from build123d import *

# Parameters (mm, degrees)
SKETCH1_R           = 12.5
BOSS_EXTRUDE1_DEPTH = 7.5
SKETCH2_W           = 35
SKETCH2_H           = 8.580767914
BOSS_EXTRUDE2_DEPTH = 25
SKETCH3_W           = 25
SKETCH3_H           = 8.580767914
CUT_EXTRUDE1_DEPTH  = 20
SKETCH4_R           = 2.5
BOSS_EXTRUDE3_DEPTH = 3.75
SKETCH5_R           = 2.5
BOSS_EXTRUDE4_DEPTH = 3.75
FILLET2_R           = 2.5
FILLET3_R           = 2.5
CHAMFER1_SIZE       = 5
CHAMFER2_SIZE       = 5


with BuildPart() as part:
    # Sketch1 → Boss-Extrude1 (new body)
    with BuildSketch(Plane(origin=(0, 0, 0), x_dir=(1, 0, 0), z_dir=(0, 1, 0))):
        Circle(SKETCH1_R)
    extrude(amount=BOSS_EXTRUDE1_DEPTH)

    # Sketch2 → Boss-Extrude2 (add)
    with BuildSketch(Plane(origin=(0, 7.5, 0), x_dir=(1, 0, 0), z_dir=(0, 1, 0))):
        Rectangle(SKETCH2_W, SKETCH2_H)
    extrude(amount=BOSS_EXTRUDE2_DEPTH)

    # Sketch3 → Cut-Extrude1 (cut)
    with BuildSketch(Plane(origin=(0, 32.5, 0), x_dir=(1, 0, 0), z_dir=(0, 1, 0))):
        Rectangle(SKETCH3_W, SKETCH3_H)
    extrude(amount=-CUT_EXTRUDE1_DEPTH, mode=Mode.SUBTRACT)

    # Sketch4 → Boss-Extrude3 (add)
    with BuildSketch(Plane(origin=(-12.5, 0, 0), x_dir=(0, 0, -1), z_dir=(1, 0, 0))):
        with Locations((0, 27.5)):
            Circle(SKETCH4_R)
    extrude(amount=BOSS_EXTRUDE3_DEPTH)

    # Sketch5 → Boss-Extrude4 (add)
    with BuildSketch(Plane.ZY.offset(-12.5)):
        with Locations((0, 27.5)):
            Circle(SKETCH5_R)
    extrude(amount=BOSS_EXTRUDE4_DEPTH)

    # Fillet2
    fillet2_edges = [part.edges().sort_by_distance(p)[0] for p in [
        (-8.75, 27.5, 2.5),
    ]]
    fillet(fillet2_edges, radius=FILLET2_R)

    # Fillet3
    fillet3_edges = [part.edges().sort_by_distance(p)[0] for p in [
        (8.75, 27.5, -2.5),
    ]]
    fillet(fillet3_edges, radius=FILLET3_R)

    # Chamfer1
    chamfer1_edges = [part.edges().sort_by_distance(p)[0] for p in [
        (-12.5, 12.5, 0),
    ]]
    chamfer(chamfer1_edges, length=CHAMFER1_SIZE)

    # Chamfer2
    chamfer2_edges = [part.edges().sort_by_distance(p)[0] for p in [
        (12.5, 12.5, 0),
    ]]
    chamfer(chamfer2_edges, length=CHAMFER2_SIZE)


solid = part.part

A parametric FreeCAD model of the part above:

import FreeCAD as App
import Part
import Sketcher
from FreeCAD import Vector
Q = App.Units.Quantity


def edges_at(feature, points):
    """Names of the edges that pass closest to the given points."""
    edges = feature.Shape.Edges
    near = lambda p: min(range(len(edges)), key=lambda i: edges[i].distToShape(Part.Vertex(*p))[0])
    return sorted({f"Edge{near(p) + 1}" for p in points})

doc = App.newDocument("Part")
body = doc.addObject("PartDesign::Body", "Body")

# Sketch on XZ plane
sketch1 = body.newObject("Sketcher::SketchObject", "Sketch")
sketch1.AttachmentSupport = (doc.getObject("XZ_Plane"), [""])
sketch1.MapMode = "FlatFace"
sketch1.addGeometry(Part.Circle(Vector(0, 0, 0), Vector(0, 0, 1), 12.5), False)
sketch1.addConstraint(Sketcher.Constraint("Coincident", 0, 3, -1, 1))
sketch1.addConstraint(Sketcher.Constraint("Diameter", 0, Q("25 mm")))
pad1 = body.newObject("PartDesign::Pad", "Pad")
pad1.Profile = sketch1
pad1.Length = 7.5
pad1.Reversed = True

# Sketch on XZ plane
sketch2 = body.newObject("Sketcher::SketchObject", "Sketch001")
sketch2.AttachmentSupport = (doc.getObject("XZ_Plane"), [""])
sketch2.MapMode = "FlatFace"
sketch2.AttachmentOffset = App.Placement(Vector(0, 0, -7.5), App.Rotation())
sketch2.addGeometry(Part.LineSegment(Vector(-17.5, -4.290384, 0), Vector(-17.5, 4.290384, 0)), False)
sketch2.addGeometry(Part.LineSegment(Vector(-17.5, 4.290384, 0), Vector(17.5, 4.290384, 0)), False)
sketch2.addGeometry(Part.LineSegment(Vector(17.5, 4.290384, 0), Vector(17.5, -4.290384, 0)), False)
sketch2.addGeometry(Part.LineSegment(Vector(17.5, -4.290384, 0), Vector(-17.5, -4.290384, 0)), False)
sketch2.addConstraint(Sketcher.Constraint("Coincident", 0, 2, 1, 1))
sketch2.addConstraint(Sketcher.Constraint("Coincident", 1, 2, 2, 1))
sketch2.addConstraint(Sketcher.Constraint("Coincident", 2, 2, 3, 1))
sketch2.addConstraint(Sketcher.Constraint("Coincident", 3, 2, 0, 1))
sketch2.addConstraint(Sketcher.Constraint("Vertical", 0))
sketch2.addConstraint(Sketcher.Constraint("Horizontal", 1))
sketch2.addConstraint(Sketcher.Constraint("Vertical", 2))
sketch2.addConstraint(Sketcher.Constraint("Horizontal", 3))
sketch2.addConstraint(Sketcher.Constraint("Symmetric", 0, 2, 2, 2, -1, 1))
sketch2.addConstraint(Sketcher.Constraint("DistanceX", 1, 1, 1, 2, Q("35 mm")))
sketch2.addConstraint(Sketcher.Constraint("DistanceY", 0, 1, 0, 2, Q("8.580768 mm")))
pad2 = body.newObject("PartDesign::Pad", "Pad001")
pad2.Profile = sketch2
pad2.Length = 25
pad2.Reversed = True

# Sketch on XZ plane
sketch3 = body.newObject("Sketcher::SketchObject", "Sketch002")
sketch3.AttachmentSupport = (doc.getObject("XZ_Plane"), [""])
sketch3.MapMode = "FlatFace"
sketch3.AttachmentOffset = App.Placement(Vector(0, 0, -32.5), App.Rotation())
sketch3.addGeometry(Part.LineSegment(Vector(-12.5, -4.290384, 0), Vector(-12.5, 4.290384, 0)), False)
sketch3.addGeometry(Part.LineSegment(Vector(-12.5, 4.290384, 0), Vector(12.5, 4.290384, 0)), False)
sketch3.addGeometry(Part.LineSegment(Vector(12.5, 4.290384, 0), Vector(12.5, -4.290384, 0)), False)
sketch3.addGeometry(Part.LineSegment(Vector(12.5, -4.290384, 0), Vector(-12.5, -4.290384, 0)), False)
sketch3.addConstraint(Sketcher.Constraint("Coincident", 0, 2, 1, 1))
sketch3.addConstraint(Sketcher.Constraint("Coincident", 1, 2, 2, 1))
sketch3.addConstraint(Sketcher.Constraint("Coincident", 2, 2, 3, 1))
sketch3.addConstraint(Sketcher.Constraint("Coincident", 3, 2, 0, 1))
sketch3.addConstraint(Sketcher.Constraint("Vertical", 0))
sketch3.addConstraint(Sketcher.Constraint("Horizontal", 1))
sketch3.addConstraint(Sketcher.Constraint("Vertical", 2))
sketch3.addConstraint(Sketcher.Constraint("Horizontal", 3))
sketch3.addConstraint(Sketcher.Constraint("Symmetric", 0, 2, 2, 2, -1, 1))
sketch3.addConstraint(Sketcher.Constraint("DistanceX", 1, 1, 1, 2, Q("25 mm")))
sketch3.addConstraint(Sketcher.Constraint("DistanceY", 0, 1, 0, 2, Q("8.580768 mm")))
pocket1 = body.newObject("PartDesign::Pocket", "Pocket")
pocket1.Profile = sketch3
pocket1.Length = 20
pocket1.Reversed = True

# Sketch on YZ plane
sketch4 = body.newObject("Sketcher::SketchObject", "Sketch003")
sketch4.AttachmentSupport = (doc.getObject("YZ_Plane"), [""])
sketch4.MapMode = "FlatFace"
sketch4.AttachmentOffset = App.Placement(Vector(0, 0, -12.5), App.Rotation())
sketch4.addGeometry(Part.Circle(Vector(27.5, 0, 0), Vector(0, 0, 1), 2.5), False)
sketch4.addConstraint(Sketcher.Constraint("PointOnObject", 0, 3, -1))
sketch4.addConstraint(Sketcher.Constraint("Diameter", 0, Q("5 mm")))
sketch4.addConstraint(Sketcher.Constraint("DistanceX", -1, 1, 0, 3, Q("27.5 mm")))
pad3 = body.newObject("PartDesign::Pad", "Pad002")
pad3.Profile = sketch4
pad3.Length = 3.75

# Sketch on YZ plane
sketch5 = body.newObject("Sketcher::SketchObject", "Sketch004")
sketch5.AttachmentSupport = (doc.getObject("YZ_Plane"), [""])
sketch5.MapMode = "FlatFace"
sketch5.AttachmentOffset = App.Placement(Vector(0, 0, 12.5), App.Rotation())
sketch5.addGeometry(Part.Circle(Vector(27.5, 0, 0), Vector(0, 0, 1), 2.5), False)
sketch5.addConstraint(Sketcher.Constraint("PointOnObject", 0, 3, -1))
sketch5.addConstraint(Sketcher.Constraint("Diameter", 0, Q("5 mm")))
sketch5.addConstraint(Sketcher.Constraint("DistanceX", -1, 1, 0, 3, Q("27.5 mm")))
pad4 = body.newObject("PartDesign::Pad", "Pad003")
pad4.Profile = sketch5
pad4.Length = 3.75
pad4.Reversed = True
doc.recompute()

fillet = body.newObject("PartDesign::Fillet", "Fillet")
fillet.Base = (pad4, edges_at(pad4, [(-8.75, 27.5, 2.5)]))
fillet.Radius = 2.5
doc.recompute()

fillet2 = body.newObject("PartDesign::Fillet", "Fillet001")
fillet2.Base = (fillet, edges_at(fillet, [(8.75, 27.5, -2.5)]))
fillet2.Radius = 2.5
doc.recompute()

chamfer = body.newObject("PartDesign::Chamfer", "Chamfer")
chamfer.Base = (fillet2, edges_at(fillet2, [(-12.5, 12.5, 0)]))
chamfer.Size = 5
doc.recompute()

chamfer2 = body.newObject("PartDesign::Chamfer", "Chamfer001")
chamfer2.Base = (chamfer, edges_at(chamfer, [(12.5, 12.5, 0)]))
chamfer2.Size = 5

doc.recompute()
